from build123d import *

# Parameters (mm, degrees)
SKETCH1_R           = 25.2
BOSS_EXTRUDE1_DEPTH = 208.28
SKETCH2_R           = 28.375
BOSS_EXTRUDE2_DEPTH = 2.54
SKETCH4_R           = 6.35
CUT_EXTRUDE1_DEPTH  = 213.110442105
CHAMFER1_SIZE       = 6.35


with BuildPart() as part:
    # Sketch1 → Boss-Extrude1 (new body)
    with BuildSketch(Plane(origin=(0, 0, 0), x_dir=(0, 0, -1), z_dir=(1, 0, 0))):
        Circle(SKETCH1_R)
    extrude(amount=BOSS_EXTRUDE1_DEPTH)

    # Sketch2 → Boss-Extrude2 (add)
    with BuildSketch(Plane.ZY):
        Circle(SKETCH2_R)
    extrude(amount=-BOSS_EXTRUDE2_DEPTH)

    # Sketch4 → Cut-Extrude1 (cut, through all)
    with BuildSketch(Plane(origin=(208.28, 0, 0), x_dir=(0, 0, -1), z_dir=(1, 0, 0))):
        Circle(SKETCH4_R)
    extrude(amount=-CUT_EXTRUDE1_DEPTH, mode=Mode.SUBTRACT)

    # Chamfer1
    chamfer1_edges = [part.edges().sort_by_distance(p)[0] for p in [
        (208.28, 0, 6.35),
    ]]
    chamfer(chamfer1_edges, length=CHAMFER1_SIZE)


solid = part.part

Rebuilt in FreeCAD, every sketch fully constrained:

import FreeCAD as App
import Part
import Sketcher

V = App.Vector
Q = App.Units.Quantity


def edges_at(feature, points):
    """Names of the edges that pass closest to the given points."""
    edges = feature.Shape.Edges
    near = lambda p: min(range(len(edges)), key=lambda i: edges[i].distToShape(Part.Vertex(*p))[0])
    return sorted({f"Edge{near(p) + 1}" for p in points})

doc = App.newDocument("Part")
body = doc.addObject("PartDesign::Body", "Body")

sketch1 = doc.addObject("Sketcher::SketchObject", "Sketch")
body.addObject(sketch1)
sketch1.AttachmentSupport = (doc.YZ_Plane, [""])
sketch1.MapMode = "FlatFace"
sketch1.addGeometry(Part.Circle(V(0, 0, 0), V(0, 0, 1), 25), False)
sketch1.addConstraint([
    Sketcher.Constraint("Coincident", 0, 3, -1, 1),
    Sketcher.Constraint("Diameter", 0, Q("50.4 mm")),
])
pad1 = doc.addObject("PartDesign::Pad", "Pad")
body.addObject(pad1)
pad1.Profile = sketch1
pad1.Length = Q("8.2 in")

sketch2 = doc.addObject("Sketcher::SketchObject", "Sketch001")
body.addObject(sketch2)
sketch2.AttachmentSupport = (doc.YZ_Plane, [""])
sketch2.MapMode = "FlatFace"
sketch2.addGeometry(Part.Circle(V(0, 0, 0), V(0, 0, 1), 28), False)
sketch2.addConstraint([
    Sketcher.Constraint("Coincident", 0, 3, -1, 1),
    Sketcher.Constraint("Diameter", 0, Q("56.75 mm")),
])
pad2 = doc.addObject("PartDesign::Pad", "Pad001")
body.addObject(pad2)
pad2.Profile = sketch2
pad2.Length = Q("0.1 in")

sketch3 = doc.addObject("Sketcher::SketchObject", "Sketch002")
body.addObject(sketch3)
sketch3.AttachmentSupport = (doc.YZ_Plane, [""])
sketch3.MapMode = "FlatFace"
sketch3.AttachmentOffset = App.Placement(V(0, 0, 8.2 * 25.4), App.Rotation())
sketch3.addGeometry(Part.Circle(V(0, 0, 0), V(0, 0, 1), 6), False)
sketch3.addConstraint([
    Sketcher.Constraint("Coincident", 0, 3, -1, 1),
    Sketcher.Constraint("Diameter", 0, Q("0.5 in")),
])
pocket1 = doc.addObject("PartDesign::Pocket", "Pocket")
body.addObject(pocket1)
pocket1.Profile = sketch3
pocket1.Type = "ThroughAll"
doc.recompute()

chamfer = doc.addObject("PartDesign::Chamfer", "Chamfer")
body.addObject(chamfer)
chamfer.Base = (pocket1, edges_at(pocket1, [(208.28, 0, 6.35)]))
chamfer.Size = Q("0.25 in")

doc.recompute()
